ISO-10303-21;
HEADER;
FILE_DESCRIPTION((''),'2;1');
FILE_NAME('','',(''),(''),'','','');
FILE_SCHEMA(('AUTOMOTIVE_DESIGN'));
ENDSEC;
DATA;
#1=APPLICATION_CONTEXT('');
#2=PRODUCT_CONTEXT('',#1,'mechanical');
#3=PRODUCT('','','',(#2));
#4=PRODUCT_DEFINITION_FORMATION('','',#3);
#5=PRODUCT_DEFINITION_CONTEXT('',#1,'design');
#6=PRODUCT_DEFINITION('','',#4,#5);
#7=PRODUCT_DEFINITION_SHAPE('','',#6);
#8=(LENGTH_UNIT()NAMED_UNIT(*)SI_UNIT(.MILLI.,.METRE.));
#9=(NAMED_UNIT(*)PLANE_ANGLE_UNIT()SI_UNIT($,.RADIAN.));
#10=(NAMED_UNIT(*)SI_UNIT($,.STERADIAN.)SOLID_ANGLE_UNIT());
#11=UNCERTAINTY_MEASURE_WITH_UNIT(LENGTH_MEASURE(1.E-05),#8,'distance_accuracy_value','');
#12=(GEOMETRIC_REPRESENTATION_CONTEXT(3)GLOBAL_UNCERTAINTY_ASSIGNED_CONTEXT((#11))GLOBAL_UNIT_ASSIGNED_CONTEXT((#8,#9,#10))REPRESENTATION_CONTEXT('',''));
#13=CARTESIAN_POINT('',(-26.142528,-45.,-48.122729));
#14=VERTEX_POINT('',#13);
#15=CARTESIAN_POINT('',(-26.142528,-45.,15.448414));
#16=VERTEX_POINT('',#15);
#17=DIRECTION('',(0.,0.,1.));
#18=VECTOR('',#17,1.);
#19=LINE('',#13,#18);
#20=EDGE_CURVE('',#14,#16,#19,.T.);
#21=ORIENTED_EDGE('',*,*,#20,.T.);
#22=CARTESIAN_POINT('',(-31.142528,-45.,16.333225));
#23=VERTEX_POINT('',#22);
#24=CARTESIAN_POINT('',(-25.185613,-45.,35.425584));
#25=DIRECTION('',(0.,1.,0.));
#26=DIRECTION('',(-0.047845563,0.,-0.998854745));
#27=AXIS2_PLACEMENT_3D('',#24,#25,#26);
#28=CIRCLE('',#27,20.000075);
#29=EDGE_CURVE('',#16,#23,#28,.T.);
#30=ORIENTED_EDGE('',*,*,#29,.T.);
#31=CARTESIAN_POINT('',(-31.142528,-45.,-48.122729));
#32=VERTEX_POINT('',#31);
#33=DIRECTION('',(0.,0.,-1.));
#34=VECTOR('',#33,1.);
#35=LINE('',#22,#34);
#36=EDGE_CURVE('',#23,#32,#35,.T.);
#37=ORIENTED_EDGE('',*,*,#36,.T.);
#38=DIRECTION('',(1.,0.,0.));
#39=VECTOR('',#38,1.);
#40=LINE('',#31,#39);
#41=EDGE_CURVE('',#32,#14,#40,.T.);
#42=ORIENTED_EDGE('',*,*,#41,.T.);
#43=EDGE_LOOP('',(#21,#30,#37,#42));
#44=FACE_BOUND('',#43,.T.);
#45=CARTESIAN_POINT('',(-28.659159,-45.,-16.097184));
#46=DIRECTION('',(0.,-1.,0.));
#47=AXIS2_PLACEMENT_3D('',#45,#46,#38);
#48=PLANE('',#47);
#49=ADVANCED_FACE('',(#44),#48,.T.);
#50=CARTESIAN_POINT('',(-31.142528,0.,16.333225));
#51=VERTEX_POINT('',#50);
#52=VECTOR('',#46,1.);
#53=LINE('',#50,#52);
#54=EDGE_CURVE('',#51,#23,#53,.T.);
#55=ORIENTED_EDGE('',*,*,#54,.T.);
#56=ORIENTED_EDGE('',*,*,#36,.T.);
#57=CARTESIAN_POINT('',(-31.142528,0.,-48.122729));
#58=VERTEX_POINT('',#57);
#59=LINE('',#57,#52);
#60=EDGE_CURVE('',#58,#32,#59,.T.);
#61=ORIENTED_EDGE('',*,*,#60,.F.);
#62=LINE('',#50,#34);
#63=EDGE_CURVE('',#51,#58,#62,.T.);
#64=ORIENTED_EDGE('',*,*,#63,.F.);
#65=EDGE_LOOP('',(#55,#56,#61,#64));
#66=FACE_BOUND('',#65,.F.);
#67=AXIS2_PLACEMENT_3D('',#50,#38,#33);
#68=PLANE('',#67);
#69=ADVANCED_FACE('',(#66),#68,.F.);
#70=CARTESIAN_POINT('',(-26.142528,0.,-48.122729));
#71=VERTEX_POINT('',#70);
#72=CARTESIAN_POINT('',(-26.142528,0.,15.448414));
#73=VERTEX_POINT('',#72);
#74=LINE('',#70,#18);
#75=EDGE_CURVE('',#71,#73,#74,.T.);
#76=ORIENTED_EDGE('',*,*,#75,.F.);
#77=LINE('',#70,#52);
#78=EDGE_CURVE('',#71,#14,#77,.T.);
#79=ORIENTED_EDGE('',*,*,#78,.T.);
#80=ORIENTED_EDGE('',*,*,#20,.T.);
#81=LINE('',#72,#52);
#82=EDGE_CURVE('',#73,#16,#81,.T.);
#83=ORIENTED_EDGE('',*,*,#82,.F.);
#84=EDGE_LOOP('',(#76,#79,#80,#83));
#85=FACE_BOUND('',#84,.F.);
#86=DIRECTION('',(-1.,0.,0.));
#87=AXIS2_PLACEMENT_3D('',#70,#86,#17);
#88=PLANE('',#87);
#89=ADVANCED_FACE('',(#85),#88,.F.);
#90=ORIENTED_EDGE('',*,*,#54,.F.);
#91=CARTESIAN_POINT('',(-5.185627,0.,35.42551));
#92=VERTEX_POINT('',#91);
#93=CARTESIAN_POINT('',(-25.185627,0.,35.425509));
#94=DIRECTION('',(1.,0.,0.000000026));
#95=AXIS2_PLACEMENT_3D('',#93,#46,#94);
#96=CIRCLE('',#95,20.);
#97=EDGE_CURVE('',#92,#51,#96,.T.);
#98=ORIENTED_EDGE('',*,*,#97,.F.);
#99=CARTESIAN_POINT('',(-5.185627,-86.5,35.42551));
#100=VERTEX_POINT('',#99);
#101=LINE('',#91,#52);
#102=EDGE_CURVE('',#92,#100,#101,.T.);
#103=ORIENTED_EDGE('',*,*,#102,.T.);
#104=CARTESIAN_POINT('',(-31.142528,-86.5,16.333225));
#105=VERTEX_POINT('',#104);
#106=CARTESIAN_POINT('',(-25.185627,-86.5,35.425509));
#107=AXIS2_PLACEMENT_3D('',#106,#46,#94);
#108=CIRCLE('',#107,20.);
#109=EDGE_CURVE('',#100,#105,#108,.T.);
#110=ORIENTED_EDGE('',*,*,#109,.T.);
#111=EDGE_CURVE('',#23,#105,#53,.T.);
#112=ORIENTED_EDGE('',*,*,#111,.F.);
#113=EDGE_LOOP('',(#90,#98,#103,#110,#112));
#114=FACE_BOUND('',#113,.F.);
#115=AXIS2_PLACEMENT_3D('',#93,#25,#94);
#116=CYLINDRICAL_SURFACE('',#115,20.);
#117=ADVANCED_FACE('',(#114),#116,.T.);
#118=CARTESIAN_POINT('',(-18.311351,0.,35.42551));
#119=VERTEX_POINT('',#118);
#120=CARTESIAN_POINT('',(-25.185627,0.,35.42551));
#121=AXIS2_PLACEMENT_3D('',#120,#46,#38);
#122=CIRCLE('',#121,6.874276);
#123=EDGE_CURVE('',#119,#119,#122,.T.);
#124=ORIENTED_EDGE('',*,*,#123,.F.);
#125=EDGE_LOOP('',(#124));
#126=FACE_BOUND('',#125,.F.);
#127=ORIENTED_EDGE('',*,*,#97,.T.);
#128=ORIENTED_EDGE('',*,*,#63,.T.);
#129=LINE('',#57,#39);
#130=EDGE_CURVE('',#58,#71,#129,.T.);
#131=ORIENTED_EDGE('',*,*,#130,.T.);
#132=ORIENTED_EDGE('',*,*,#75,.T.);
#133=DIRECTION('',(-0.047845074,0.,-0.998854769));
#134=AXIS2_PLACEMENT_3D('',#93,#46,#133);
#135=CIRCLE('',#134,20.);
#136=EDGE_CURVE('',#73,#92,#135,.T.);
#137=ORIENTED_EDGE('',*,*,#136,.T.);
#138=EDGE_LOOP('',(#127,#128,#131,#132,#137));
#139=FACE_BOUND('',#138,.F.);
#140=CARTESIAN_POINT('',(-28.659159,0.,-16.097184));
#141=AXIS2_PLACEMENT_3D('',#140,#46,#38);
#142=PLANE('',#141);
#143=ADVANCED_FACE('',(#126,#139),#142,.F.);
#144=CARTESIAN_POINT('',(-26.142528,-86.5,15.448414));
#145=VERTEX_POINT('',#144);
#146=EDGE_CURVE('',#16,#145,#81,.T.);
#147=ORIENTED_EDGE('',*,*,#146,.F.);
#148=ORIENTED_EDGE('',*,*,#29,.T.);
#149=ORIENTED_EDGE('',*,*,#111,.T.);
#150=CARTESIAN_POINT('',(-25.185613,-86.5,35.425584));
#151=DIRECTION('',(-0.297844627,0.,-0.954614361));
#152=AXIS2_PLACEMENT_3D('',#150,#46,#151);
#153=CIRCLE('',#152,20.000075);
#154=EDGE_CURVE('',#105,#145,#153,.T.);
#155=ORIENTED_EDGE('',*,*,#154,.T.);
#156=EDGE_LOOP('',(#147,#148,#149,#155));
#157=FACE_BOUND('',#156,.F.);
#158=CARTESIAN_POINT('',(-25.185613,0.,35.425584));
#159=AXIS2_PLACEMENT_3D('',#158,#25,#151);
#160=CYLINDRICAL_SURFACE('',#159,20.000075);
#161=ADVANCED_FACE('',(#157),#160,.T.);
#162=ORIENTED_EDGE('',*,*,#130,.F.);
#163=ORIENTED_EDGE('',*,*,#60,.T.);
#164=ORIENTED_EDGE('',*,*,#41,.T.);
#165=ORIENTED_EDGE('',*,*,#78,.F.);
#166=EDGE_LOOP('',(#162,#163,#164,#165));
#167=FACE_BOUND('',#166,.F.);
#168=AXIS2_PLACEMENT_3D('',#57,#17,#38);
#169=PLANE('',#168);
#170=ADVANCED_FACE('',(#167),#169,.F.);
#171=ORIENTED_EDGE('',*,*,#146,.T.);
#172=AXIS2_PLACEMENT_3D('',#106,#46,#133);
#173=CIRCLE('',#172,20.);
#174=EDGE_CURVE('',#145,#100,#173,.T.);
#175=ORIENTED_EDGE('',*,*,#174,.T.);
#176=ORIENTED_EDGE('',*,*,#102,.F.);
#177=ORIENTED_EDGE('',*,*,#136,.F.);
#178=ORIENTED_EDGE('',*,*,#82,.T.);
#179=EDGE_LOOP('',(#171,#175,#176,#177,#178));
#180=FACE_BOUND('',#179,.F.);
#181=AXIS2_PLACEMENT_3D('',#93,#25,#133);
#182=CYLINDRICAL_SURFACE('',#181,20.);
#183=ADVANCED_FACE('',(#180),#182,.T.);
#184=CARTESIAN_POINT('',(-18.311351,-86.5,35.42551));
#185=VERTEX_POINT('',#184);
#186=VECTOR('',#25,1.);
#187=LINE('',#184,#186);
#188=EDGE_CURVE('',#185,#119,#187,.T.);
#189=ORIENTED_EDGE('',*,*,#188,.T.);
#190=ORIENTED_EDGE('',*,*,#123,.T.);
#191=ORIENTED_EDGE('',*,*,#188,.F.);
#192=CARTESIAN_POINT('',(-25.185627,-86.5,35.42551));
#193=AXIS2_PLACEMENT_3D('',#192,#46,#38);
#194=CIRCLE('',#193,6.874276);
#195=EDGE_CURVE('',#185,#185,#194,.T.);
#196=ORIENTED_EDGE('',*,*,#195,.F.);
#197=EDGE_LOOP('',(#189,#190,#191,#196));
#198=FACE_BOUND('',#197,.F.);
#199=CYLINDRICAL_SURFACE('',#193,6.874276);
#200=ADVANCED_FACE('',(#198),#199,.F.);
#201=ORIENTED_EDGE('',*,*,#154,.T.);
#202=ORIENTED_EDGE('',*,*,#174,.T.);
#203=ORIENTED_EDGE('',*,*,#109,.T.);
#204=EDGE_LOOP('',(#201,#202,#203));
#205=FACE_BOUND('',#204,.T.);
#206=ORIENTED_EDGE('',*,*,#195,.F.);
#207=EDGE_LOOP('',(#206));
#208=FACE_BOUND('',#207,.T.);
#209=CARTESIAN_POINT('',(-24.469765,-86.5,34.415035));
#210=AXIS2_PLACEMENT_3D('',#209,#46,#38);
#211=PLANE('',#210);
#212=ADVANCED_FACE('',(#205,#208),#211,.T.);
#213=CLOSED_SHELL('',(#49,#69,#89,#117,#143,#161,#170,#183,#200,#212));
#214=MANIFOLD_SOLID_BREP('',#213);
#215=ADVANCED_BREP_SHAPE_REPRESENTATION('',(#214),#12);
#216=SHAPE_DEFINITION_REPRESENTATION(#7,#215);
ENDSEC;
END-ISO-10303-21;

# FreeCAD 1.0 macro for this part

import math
import FreeCAD as App
import Part
import Sketcher

V = App.Vector

doc = App.newDocument("Part")
body = doc.addObject("PartDesign::Body", "Body")

sketch1 = body.newObject("Sketcher::SketchObject", "Sketch")
sketch1.AttachmentSupport = (doc.getObject("XZ_Plane"), [""])
sketch1.MapMode = "FlatFace"
sketch1.addGeometry(Part.ArcOfCircle(Part.Circle(V(-25.185627, 35.425509, 0), V(0, 0, 1), 20), math.radians(-92.742368), math.radians(0.000003)), False)
sketch1.addGeometry(Part.ArcOfCircle(Part.Circle(V(-25.185627, 35.425509, 0), V(0, 0, 1), 20), math.radians(0.000002), math.radians(252.671782)), False)
sketch1.addGeometry(Part.ArcOfCircle(Part.Circle(V(-25.185613, 35.425584, 0), V(0, 0, 1), 20.000075), math.radians(-107.328192), math.radians(-92.742396)), False)
sketch1.addConstraint(Sketcher.Constraint("Coincident", 0, 2, 1, 1))
sketch1.addConstraint(Sketcher.Constraint("Coincident", 1, 2, 2, 1))
sketch1.addConstraint(Sketcher.Constraint("Coincident", 2, 2, 0, 1))
sketch1.addConstraint(Sketcher.Constraint("Coincident", 1, 3, 0, 3))
sketch1.addConstraint(Sketcher.Constraint("Radius", 0, 20.0))
sketch1.addConstraint(Sketcher.Constraint("DistanceX", 1, 2, 2, 2, 5.0))
sketch1.addConstraint(Sketcher.Constraint("Radius", 2, 20.000075))
sketch1.addConstraint(Sketcher.Constraint("DistanceX", 1, 2, 0, 3, 5.956901))
sketch1.addConstraint(Sketcher.Constraint("DistanceY", -1, 1, 0, 3, 35.425509))
sketch1.addConstraint(Sketcher.Constraint("DistanceY", -1, 1, 0, 2, 35.42551))
sketch1.addConstraint(Sketcher.Constraint("DistanceX", 1, 2, -1, 1, 31.142528))
pad1 = body.newObject("PartDesign::Pad", "Pad")
pad1.Profile = sketch1
pad1.Length = 86.5

sketch2 = body.newObject("Sketcher::SketchObject", "Sketch001")
sketch2.AttachmentSupport = (doc.getObject("XZ_Plane"), [""])
sketch2.MapMode = "FlatFace"
sketch2.addGeometry(Part.ArcOfCircle(Part.Circle(V(-25, 35, 0), V(0, 0, 1), 20), math.radians(-107.33), math.radians(-92.74)), False)
sketch2.addGeometry(Part.LineSegment(V(-31, 16, 0), V(-31, -48, 0)), False)
sketch2.addGeometry(Part.LineSegment(V(-31, -48, 0), V(-26, -48, 0)), False)
sketch2.addGeometry(Part.LineSegment(V(-26, -48, 0), V(-26, 15, 0)), False)
sketch2.addConstraint(Sketcher.Constraint("Coincident", 0, 1, 1, 1))
sketch2.addConstraint(Sketcher.Constraint("Coincident", 1, 2, 2, 1))
sketch2.addConstraint(Sketcher.Constraint("Coincident", 2, 2, 3, 1))
sketch2.addConstraint(Sketcher.Constraint("Coincident", 3, 2, 0, 2))
sketch2.addConstraint(Sketcher.Constraint("Vertical", 1))
sketch2.addConstraint(Sketcher.Constraint("Horizontal", 2))
sketch2.addConstraint(Sketcher.Constraint("Vertical", 3))
sketch2.addConstraint(Sketcher.Constraint("DistanceX", 2, 1, 2, 2, 5.0))
sketch2.addConstraint(Sketcher.Constraint("Radius", 0, 20.000075))
sketch2.addConstraint(Sketcher.Constraint("DistanceY", 1, 2, 1, 1, 64.455954))
sketch2.addConstraint(Sketcher.Constraint("DistanceY", 3, 1, 3, 2, 63.571143))
sketch2.addConstraint(Sketcher.Constraint("DistanceY", 1, 2, -1, 1, 48.122729))
sketch2.addConstraint(Sketcher.Constraint("DistanceX", 0, 3, -1, 1, 25.185613))
pad2 = body.newObject("PartDesign::Pad", "Pad001")
pad2.Profile = sketch2
pad2.Length = 45

sketch3 = body.newObject("Sketcher::SketchObject", "Sketch002")
sketch3.AttachmentSupport = (doc.getObject("XZ_Plane"), [""])
sketch3.MapMode = "FlatFace"
sketch3.AttachmentOffset = App.Placement(V(0, 0, 86.5), App.Rotation())
sketch3.addGeometry(Part.Circle(V(-25, 35, 0), V(0, 0, 1), 7), False)
sketch3.addConstraint(Sketcher.Constraint("Diameter", 0, 13.748552))
sketch3.addConstraint(Sketcher.Constraint("DistanceY", -1, 1, 0, 3, 35.42551))
sketch3.addConstraint(Sketcher.Constraint("DistanceX", 0, 3, -1, 1, 25.185627))
pocket1 = body.newObject("PartDesign::Pocket", "Pocket")
pocket1.Profile = sketch3
pocket1.Length = 100

doc.recompute()
